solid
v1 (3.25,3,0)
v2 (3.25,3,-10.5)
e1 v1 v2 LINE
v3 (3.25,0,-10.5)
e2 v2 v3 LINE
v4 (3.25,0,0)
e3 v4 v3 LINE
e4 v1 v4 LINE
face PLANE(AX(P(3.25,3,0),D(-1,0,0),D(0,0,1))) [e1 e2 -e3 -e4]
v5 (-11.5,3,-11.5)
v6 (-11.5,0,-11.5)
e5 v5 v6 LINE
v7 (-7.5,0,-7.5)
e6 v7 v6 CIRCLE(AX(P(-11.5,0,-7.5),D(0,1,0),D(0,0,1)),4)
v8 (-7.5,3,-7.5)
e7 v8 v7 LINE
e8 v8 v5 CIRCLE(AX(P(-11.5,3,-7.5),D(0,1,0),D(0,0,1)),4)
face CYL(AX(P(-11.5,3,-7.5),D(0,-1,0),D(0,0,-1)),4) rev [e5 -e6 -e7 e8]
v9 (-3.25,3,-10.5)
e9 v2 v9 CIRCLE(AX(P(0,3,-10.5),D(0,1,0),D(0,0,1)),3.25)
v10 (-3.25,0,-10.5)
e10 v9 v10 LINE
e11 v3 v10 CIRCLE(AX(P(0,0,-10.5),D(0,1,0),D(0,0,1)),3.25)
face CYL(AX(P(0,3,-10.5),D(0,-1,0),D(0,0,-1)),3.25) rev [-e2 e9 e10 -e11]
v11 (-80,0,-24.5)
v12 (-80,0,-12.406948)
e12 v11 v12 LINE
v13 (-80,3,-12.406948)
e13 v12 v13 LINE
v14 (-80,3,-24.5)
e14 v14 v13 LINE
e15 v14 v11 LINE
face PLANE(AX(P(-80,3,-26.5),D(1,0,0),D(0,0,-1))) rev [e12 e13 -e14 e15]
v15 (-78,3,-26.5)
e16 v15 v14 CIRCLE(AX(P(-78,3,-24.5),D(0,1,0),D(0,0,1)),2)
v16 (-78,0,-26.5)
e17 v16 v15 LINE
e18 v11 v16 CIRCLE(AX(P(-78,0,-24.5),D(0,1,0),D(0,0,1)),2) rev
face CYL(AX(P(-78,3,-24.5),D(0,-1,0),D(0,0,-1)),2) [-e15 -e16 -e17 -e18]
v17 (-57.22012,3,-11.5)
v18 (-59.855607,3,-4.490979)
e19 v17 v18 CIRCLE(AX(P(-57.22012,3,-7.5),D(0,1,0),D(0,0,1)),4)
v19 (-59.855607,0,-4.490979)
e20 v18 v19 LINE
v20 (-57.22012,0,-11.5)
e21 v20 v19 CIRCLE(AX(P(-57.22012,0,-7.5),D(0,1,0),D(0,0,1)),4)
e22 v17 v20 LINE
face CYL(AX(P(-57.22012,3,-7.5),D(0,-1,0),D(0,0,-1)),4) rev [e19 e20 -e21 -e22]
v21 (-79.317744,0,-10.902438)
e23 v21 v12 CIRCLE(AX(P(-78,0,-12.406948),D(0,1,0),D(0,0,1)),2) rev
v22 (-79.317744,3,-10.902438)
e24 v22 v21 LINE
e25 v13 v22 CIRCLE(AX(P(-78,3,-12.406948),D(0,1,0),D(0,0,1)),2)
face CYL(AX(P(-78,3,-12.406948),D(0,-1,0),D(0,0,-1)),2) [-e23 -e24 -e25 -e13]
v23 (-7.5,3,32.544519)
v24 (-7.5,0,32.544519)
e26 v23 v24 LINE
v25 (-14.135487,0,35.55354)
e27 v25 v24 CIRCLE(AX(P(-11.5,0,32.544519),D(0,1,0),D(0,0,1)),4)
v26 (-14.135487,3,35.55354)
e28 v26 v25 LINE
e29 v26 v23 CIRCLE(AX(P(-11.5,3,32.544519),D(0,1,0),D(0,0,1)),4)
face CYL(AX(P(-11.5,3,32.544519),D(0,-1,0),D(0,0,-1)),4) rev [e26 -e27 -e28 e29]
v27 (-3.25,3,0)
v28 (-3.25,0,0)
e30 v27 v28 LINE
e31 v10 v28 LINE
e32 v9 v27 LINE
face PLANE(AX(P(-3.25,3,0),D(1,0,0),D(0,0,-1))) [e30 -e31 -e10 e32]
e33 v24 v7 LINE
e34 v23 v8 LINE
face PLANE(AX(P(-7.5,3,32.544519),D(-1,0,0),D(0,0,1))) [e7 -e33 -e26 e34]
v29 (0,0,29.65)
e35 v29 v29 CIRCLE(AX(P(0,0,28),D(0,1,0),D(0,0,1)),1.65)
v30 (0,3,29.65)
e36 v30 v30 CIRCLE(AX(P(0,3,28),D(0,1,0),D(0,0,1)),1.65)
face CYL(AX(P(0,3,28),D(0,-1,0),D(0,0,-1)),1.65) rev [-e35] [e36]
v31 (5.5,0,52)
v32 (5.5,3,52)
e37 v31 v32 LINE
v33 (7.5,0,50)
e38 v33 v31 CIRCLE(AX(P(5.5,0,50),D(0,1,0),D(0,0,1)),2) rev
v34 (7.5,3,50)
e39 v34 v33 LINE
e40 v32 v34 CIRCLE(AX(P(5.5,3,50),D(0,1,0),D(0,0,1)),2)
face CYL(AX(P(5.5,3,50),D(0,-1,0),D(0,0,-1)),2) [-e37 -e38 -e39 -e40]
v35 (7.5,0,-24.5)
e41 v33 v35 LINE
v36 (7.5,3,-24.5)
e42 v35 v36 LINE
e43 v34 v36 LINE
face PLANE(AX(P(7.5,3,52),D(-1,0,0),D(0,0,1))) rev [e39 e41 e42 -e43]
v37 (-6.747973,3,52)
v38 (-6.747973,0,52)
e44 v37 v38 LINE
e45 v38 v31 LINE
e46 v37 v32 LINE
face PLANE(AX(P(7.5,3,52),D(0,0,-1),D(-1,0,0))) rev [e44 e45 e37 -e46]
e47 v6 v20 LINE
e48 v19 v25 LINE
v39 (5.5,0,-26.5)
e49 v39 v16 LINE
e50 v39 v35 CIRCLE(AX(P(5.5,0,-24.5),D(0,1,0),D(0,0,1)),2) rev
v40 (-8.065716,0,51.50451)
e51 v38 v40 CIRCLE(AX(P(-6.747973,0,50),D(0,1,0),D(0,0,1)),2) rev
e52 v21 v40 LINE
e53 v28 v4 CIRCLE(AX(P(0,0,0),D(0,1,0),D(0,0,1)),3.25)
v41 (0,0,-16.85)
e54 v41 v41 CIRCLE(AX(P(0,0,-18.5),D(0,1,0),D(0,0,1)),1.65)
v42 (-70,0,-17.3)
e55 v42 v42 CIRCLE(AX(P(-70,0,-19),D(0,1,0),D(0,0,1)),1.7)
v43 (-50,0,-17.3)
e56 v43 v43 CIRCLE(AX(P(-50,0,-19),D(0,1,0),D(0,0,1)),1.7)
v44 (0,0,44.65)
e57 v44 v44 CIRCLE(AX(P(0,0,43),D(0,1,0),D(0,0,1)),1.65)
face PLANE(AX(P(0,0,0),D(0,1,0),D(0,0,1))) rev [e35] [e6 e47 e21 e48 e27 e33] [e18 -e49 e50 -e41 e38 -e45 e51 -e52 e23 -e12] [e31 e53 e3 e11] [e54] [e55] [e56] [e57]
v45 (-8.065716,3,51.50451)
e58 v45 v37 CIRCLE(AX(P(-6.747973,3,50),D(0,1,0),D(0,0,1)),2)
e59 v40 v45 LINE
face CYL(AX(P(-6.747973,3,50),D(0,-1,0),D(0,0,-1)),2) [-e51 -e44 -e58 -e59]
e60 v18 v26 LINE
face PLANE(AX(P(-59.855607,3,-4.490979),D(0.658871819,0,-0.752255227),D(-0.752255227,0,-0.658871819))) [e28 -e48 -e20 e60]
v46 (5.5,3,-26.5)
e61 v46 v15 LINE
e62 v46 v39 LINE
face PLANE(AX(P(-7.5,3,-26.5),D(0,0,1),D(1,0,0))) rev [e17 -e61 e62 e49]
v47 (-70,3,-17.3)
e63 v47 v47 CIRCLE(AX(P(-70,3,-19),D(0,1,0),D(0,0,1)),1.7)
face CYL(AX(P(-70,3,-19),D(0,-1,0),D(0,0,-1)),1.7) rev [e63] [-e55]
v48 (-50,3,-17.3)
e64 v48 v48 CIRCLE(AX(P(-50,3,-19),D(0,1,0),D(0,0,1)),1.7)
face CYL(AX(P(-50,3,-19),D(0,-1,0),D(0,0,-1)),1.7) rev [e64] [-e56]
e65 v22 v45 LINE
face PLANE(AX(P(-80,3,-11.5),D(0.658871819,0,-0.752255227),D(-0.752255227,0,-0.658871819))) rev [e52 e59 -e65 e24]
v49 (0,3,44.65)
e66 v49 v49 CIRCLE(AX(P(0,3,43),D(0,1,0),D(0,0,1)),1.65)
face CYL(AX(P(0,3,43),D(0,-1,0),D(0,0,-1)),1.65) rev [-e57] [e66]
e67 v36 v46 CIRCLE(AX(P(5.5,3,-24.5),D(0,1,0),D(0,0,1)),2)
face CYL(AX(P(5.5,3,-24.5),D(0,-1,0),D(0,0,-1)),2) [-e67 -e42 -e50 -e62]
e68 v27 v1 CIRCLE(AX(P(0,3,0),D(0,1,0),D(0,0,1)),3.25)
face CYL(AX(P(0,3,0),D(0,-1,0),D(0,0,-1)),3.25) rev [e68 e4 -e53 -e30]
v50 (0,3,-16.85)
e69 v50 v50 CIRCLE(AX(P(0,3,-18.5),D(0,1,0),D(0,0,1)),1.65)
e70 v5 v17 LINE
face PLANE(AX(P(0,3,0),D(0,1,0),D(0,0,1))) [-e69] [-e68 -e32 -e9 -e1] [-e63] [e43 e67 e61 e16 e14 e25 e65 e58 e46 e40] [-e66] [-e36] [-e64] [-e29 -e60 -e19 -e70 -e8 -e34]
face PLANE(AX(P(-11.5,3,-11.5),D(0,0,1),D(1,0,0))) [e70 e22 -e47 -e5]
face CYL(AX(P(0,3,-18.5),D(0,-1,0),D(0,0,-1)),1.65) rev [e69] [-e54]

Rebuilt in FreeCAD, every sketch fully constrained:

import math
import FreeCAD as App
import Part
import Sketcher

V = App.Vector


def edges_at(feature, points):
    """Names of the edges that pass closest to the given points."""
    edges = feature.Shape.Edges
    near = lambda p: min(range(len(edges)), key=lambda i: edges[i].distToShape(Part.Vertex(*p))[0])
    return sorted({f"Edge{near(p) + 1}" for p in points})

doc = App.newDocument("Part")
body = doc.addObject("PartDesign::Body", "Body")

sketch1 = body.newObject("Sketcher::SketchObject", "Sketch")
sketch1.AttachmentSupport = (doc.getObject("XZ_Plane"), [""])
sketch1.MapMode = "FlatFace"
sketch1.addGeometry(Part.LineSegment(V(-80, -11.5, 0), V(-7.5, 52, 0)), False)
sketch1.addGeometry(Part.LineSegment(V(-7.5, 52, 0), V(7.5, 52, 0)), False)
sketch1.addGeometry(Part.LineSegment(V(7.5, 52, 0), V(7.5, -26.5, 0)), False)
sketch1.addGeometry(Part.LineSegment(V(7.5, -26.5, 0), V(-80, -26.5, 0)), False)
sketch1.addGeometry(Part.LineSegment(V(-80, -26.5, 0), V(-80, -11.5, 0)), False)
sketch1.addGeometry(Part.LineSegment(V(-7.5, -7.5, 0), V(-7.5, 32.5, 0)), False)
sketch1.addGeometry(Part.ArcOfCircle(Part.Circle(V(-11.5, 32.5, 0), V(0, 0, 1), 4), math.radians(0), math.radians(131)), False)
sketch1.addGeometry(Part.LineSegment(V(-14.1, 35.6, 0), V(-59.9, -4.5, 0)), False)
sketch1.addGeometry(Part.ArcOfCircle(Part.Circle(V(-57.2, -7.5, 0), V(0, 0, 1), 4), math.radians(131), math.radians(270)), False)
sketch1.addGeometry(Part.LineSegment(V(-57.2, -11.5, 0), V(-11.5, -11.5, 0)), False)
sketch1.addGeometry(Part.ArcOfCircle(Part.Circle(V(-11.5, -7.5, 0), V(0, 0, 1), 4), math.radians(-90), math.radians(0)), False)
sketch1.addGeometry(Part.Circle(V(0, 43, 0), V(0, 0, 1), 1.6), False)
sketch1.addGeometry(Part.Circle(V(0, 28, 0), V(0, 0, 1), 1.6), False)
sketch1.addGeometry(Part.Circle(V(-70, -19, 0), V(0, 0, 1), 1.7), False)
sketch1.addGeometry(Part.Circle(V(-50, -19, 0), V(0, 0, 1), 1.7), False)
sketch1.addGeometry(Part.ArcOfCircle(Part.Circle(V(0, 0, 0), V(0, 0, 1), 3.2), math.radians(0), math.radians(180)), False)
sketch1.addGeometry(Part.LineSegment(V(-3.2, 0, 0), V(-3.2, -10.5, 0)), False)
sketch1.addGeometry(Part.ArcOfCircle(Part.Circle(V(0, -10.5, 0), V(0, 0, 1), 3.2), math.radians(180), math.radians(360)), False)
sketch1.addGeometry(Part.LineSegment(V(3.2, -10.5, 0), V(3.2, 0, 0)), False)
sketch1.addGeometry(Part.Circle(V(0, -18.5, 0), V(0, 0, 1), 1.6), False)
sketch1.addConstraint(Sketcher.Constraint("Coincident", 0, 2, 1, 1))
sketch1.addConstraint(Sketcher.Constraint("Coincident", 1, 2, 2, 1))
sketch1.addConstraint(Sketcher.Constraint("Coincident", 2, 2, 3, 1))
sketch1.addConstraint(Sketcher.Constraint("Coincident", 3, 2, 4, 1))
sketch1.addConstraint(Sketcher.Constraint("Coincident", 4, 2, 0, 1))
sketch1.addConstraint(Sketcher.Constraint("Tangent", 5, 2, 6, 1))
sketch1.addConstraint(Sketcher.Constraint("Tangent", 6, 2, 7, 1))
sketch1.addConstraint(Sketcher.Constraint("Tangent", 7, 2, 8, 1))
sketch1.addConstraint(Sketcher.Constraint("Tangent", 8, 2, 9, 1))
sketch1.addConstraint(Sketcher.Constraint("Tangent", 9, 2, 10, 1))
sketch1.addConstraint(Sketcher.Constraint("Tangent", 10, 2, 5, 1))
sketch1.addConstraint(Sketcher.Constraint("Tangent", 15, 2, 16, 1))
sketch1.addConstraint(Sketcher.Constraint("Tangent", 16, 2, 17, 1))
sketch1.addConstraint(Sketcher.Constraint("Tangent", 17, 2, 18, 1))
sketch1.addConstraint(Sketcher.Constraint("Tangent", 18, 2, 15, 1))
sketch1.addConstraint(Sketcher.Constraint("Horizontal", 1))
sketch1.addConstraint(Sketcher.Constraint("Vertical", 2))
sketch1.addConstraint(Sketcher.Constraint("Horizontal", 3))
sketch1.addConstraint(Sketcher.Constraint("Vertical", 4))
sketch1.addConstraint(Sketcher.Constraint("Vertical", 5))
sketch1.addConstraint(Sketcher.Constraint("Horizontal", 9))
sketch1.addConstraint(Sketcher.Constraint("Vertical", 16))
sketch1.addConstraint(Sketcher.Constraint("Vertical", 18))
sketch1.addConstraint(Sketcher.Constraint("Coincident", 15, 3, -1, 1))
sketch1.addConstraint(Sketcher.Constraint("Equal", 6, 8))
sketch1.addConstraint(Sketcher.Constraint("Equal", 8, 10))
sketch1.addConstraint(Sketcher.Constraint("Equal", 11, 12))
sketch1.addConstraint(Sketcher.Constraint("Equal", 13, 14))
sketch1.addConstraint(Sketcher.Constraint("Equal", 12, 19))
sketch1.addConstraint(Sketcher.Constraint("PointOnObject", 11, 3, -2))
sketch1.addConstraint(Sketcher.Constraint("PointOnObject", 12, 3, -2))
sketch1.addConstraint(Sketcher.Constraint("PointOnObject", 19, 3, -2))
sketch1.addConstraint(Sketcher.Constraint("Parallel", 0, 7))
sketch1.addConstraint(Sketcher.Constraint("Horizontal", 13, 3, 14, 3))
sketch1.addConstraint(Sketcher.Constraint("Horizontal", 4, 2, 8, 2))
sketch1.addConstraint(Sketcher.Constraint("Vertical", 0, 2, 5, 2))
sketch1.addConstraint(Sketcher.Constraint("Equal", 1, 4))
sketch1.addConstraint(Sketcher.Constraint("Radius", 6, 4.0))
sketch1.addConstraint(Sketcher.Constraint("Diameter", 11, 3.3))
sketch1.addConstraint(Sketcher.Constraint("Diameter", 13, 3.4))
sketch1.addConstraint(Sketcher.Constraint("DistanceX", 1, 1, 1, 2, 15.0))
sketch1.addConstraint(Sketcher.Constraint("Radius", 15, 3.25))
sketch1.addConstraint(Sketcher.Constraint("DistanceX", 3, 2, 3, 1, 87.5))
sketch1.addConstraint(Sketcher.Constraint("DistanceY", 2, 2, 2, 1, 78.5))
sketch1.addConstraint(Sketcher.Constraint("DistanceY", 16, 2, 16, 1, 10.5))
sketch1.addConstraint(Sketcher.Constraint("DistanceY", -1, 1, 11, 3, 43.0))
sketch1.addConstraint(Sketcher.Constraint("DistanceY", -1, 1, 12, 3, 28.0))
sketch1.addConstraint(Sketcher.Constraint("DistanceX", 13, 3, -1, 1, 70.0))
sketch1.addConstraint(Sketcher.Constraint("DistanceY", 13, 3, -1, 1, 19.0))
sketch1.addConstraint(Sketcher.Constraint("DistanceX", 14, 3, -1, 1, 50.0))
sketch1.addConstraint(Sketcher.Constraint("DistanceY", -1, 1, 0, 2, 52.0))
sketch1.addConstraint(Sketcher.Constraint("DistanceX", 3, 2, -1, 1, 80.0))
sketch1.addConstraint(Sketcher.Constraint("DistanceY", 19, 3, 17, 3, 8.0))
sketch1.addConstraint(Sketcher.Constraint("DistanceX", 9, 1, 9, 2, 45.72012))
pad1 = body.newObject("PartDesign::Pad", "Pad")
pad1.Profile = sketch1
pad1.Length = 3
pad1.Reversed = True
doc.recompute()

fillet = body.newObject("PartDesign::Fillet", "Fillet")
fillet.Base = (pad1, edges_at(pad1, [
    (7.5, 1.5, 52),
    (-7.5, 1.5, 52),
    (-80, 1.5, -11.5),
    (-80, 1.5, -26.5),
    (7.5, 1.5, -26.5),
]))
fillet.Radius = 2

doc.recompute()
